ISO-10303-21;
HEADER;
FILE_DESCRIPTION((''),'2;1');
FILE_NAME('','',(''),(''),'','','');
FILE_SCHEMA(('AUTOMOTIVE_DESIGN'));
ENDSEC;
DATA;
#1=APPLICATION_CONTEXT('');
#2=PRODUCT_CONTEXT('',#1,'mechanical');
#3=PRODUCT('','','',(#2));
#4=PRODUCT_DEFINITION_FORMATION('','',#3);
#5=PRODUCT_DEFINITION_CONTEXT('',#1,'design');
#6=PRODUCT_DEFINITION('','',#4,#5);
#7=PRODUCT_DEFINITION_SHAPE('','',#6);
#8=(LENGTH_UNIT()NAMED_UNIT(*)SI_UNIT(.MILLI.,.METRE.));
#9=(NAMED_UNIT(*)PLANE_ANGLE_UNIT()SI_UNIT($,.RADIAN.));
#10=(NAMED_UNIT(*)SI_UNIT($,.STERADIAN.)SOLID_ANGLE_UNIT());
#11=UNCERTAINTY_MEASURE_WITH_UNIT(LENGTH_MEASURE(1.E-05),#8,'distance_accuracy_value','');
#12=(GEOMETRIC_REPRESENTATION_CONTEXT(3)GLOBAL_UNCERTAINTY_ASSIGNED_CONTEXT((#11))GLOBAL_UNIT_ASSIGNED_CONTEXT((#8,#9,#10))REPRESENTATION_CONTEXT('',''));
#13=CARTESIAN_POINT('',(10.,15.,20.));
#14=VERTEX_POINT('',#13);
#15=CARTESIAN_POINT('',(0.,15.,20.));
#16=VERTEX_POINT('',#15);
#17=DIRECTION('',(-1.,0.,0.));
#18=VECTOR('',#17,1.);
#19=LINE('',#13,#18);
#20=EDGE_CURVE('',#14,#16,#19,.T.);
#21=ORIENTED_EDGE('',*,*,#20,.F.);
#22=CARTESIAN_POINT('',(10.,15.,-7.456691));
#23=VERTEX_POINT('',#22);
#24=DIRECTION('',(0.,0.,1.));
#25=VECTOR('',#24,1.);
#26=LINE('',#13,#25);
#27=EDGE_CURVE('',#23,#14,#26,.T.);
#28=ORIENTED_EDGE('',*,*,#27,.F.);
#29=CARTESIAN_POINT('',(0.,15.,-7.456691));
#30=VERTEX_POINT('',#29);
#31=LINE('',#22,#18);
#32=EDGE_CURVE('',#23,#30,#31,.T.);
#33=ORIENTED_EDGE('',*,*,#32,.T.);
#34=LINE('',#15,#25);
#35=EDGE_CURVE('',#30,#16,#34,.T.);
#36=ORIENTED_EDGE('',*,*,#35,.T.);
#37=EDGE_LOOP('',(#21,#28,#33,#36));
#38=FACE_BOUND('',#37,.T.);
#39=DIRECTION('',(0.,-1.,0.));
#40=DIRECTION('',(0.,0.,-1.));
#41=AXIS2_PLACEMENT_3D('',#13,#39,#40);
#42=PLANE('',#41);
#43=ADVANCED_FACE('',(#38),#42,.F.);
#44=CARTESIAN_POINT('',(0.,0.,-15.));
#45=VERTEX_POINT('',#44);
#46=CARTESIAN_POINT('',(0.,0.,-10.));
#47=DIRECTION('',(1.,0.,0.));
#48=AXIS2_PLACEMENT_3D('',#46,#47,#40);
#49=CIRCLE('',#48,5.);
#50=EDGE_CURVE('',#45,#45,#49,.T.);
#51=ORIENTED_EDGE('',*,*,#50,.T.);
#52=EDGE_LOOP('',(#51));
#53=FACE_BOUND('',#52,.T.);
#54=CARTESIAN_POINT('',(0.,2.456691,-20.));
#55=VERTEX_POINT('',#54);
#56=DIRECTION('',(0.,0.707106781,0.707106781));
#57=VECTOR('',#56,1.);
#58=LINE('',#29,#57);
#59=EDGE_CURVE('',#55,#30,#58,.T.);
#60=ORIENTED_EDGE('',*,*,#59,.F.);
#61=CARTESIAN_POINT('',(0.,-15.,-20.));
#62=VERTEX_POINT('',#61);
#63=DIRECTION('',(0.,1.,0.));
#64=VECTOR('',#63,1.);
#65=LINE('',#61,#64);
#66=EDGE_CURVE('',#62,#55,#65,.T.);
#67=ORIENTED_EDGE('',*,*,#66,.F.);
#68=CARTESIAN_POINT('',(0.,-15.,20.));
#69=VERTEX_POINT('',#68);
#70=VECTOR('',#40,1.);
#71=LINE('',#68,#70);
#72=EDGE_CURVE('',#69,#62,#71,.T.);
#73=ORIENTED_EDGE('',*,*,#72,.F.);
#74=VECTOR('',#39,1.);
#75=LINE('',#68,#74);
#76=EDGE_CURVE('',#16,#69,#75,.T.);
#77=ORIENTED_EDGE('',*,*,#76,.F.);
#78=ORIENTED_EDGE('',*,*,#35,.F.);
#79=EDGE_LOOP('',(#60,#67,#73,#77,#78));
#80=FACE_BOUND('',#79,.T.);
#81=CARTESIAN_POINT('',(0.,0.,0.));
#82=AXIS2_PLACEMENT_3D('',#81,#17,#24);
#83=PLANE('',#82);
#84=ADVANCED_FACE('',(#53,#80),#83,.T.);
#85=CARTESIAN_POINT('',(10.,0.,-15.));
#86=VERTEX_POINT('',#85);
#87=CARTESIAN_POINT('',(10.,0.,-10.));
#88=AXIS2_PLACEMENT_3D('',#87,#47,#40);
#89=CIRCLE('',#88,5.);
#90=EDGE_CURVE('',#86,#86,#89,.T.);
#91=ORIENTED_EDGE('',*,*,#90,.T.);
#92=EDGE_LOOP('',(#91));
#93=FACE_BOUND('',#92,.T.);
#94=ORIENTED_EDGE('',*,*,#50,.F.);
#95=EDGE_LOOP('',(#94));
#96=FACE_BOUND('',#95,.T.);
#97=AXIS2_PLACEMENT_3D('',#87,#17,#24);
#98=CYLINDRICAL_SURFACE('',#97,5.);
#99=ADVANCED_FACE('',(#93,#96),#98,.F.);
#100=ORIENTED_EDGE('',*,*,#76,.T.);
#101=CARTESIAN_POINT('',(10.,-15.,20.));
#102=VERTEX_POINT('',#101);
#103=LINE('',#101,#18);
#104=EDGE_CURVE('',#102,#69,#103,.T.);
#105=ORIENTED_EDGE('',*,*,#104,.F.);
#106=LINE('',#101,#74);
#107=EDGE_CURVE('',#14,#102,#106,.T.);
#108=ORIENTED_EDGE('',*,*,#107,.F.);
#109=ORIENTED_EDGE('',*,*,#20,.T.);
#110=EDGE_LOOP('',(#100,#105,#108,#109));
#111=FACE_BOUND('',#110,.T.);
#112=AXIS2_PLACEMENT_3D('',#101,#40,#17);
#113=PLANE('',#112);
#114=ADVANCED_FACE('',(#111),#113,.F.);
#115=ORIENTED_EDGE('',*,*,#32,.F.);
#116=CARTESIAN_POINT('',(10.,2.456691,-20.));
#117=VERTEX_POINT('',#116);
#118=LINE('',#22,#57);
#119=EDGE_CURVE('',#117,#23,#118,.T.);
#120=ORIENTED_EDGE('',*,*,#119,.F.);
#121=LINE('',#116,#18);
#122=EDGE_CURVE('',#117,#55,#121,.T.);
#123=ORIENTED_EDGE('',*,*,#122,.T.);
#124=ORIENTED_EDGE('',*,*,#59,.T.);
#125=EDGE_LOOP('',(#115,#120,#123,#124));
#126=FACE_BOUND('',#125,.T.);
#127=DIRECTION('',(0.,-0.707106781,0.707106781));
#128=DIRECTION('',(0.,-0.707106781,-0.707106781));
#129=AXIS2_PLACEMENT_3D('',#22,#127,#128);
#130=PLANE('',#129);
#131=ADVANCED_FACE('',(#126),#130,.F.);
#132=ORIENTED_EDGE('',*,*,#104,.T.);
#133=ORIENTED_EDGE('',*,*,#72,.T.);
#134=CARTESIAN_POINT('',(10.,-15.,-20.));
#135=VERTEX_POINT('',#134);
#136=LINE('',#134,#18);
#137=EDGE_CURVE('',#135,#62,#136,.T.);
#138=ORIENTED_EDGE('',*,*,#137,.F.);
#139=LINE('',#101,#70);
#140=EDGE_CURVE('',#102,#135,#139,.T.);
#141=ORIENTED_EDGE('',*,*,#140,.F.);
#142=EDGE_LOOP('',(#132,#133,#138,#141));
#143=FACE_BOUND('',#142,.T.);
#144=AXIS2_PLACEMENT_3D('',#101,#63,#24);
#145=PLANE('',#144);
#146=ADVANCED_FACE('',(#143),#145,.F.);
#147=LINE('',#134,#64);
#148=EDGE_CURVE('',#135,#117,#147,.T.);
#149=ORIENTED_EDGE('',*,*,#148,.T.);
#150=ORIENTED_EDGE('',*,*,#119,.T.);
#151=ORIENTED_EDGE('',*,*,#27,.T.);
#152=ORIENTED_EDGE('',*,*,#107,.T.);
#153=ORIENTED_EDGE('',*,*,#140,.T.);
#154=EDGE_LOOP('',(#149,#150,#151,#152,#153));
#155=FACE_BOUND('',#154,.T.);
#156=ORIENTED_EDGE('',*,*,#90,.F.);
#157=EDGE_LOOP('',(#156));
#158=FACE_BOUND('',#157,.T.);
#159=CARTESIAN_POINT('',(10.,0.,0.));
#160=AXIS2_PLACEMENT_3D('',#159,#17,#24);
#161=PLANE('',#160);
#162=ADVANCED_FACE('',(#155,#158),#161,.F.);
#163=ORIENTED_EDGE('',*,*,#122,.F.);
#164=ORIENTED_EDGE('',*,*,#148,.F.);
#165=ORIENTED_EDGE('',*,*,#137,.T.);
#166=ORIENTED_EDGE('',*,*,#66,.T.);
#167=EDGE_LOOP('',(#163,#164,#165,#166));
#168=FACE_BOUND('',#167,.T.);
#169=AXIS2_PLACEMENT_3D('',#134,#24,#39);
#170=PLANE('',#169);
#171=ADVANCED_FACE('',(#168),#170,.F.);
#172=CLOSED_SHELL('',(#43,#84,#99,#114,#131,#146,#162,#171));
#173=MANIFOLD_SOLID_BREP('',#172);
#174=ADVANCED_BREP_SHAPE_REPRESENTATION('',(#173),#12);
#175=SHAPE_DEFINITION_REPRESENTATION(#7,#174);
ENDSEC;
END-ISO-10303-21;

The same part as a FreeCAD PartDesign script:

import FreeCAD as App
import Part
import Sketcher
from FreeCAD import Vector
Q = App.Units.Quantity


def add_polygon(sketch, points):
    """Adds a closed chain of lines whose ends are joined by coincident constraints."""
    first, n = sketch.GeometryCount, len(points)
    for a, b in zip(points, points[1:] + points[:1]):
        sketch.addGeometry(Part.LineSegment(App.Vector(*a, 0), App.Vector(*b, 0)), False)
    for i in range(n):
        sketch.addConstraint(Sketcher.Constraint("Coincident", first + i, 2, first + (i + 1) % n, 1))

doc = App.newDocument("Part")
body = doc.addObject("PartDesign::Body", "Body")

# Sketch on YZ plane
sketch1 = doc.addObject("Sketcher::SketchObject", "Sketch")
body.addObject(sketch1)
sketch1.AttachmentSupport = (doc.YZ_Plane, [""])
sketch1.MapMode = "FlatFace"
add_polygon(sketch1, [(2.456691, -20), (15, -7.456691), (15, 20), (-15, 20), (-15, -20)])  # lines 0-4
sketch1.addGeometry(Part.Circle(Vector(0, -10, 0), Vector(0, 0, 1), 5), False)  # 5
sketch1.addConstraint(Sketcher.Constraint("Vertical", 1))
sketch1.addConstraint(Sketcher.Constraint("Horizontal", 2))
sketch1.addConstraint(Sketcher.Constraint("Vertical", 3))
sketch1.addConstraint(Sketcher.Constraint("Horizontal", 4))
sketch1.addConstraint(Sketcher.Constraint("Symmetric", 1, 2, 3, 2, -1, 1))
sketch1.addConstraint(Sketcher.Constraint("PointOnObject", 5, 3, -2))
sketch1.addConstraint(Sketcher.Constraint("Diameter", 5, 10.0))
sketch1.addConstraint(Sketcher.Constraint("DistanceX", 2, 2, 2, 1, 30.0))
sketch1.addConstraint(Sketcher.Constraint("DistanceY", 3, 2, 3, 1, 40.0))
sketch1.addConstraint(Sketcher.Constraint("Angle", 0, Q("45 deg")))
sketch1.addConstraint(Sketcher.Constraint("DistanceY", 5, 3, -1, 1, 10.0))
sketch1.addConstraint(Sketcher.Constraint("DistanceX", 4, 1, 4, 2, 17.456691))
pad1 = doc.addObject("PartDesign::Pad", "Pad")
body.addObject(pad1)
pad1.Profile = sketch1
pad1.Length = 10

doc.recompute()
